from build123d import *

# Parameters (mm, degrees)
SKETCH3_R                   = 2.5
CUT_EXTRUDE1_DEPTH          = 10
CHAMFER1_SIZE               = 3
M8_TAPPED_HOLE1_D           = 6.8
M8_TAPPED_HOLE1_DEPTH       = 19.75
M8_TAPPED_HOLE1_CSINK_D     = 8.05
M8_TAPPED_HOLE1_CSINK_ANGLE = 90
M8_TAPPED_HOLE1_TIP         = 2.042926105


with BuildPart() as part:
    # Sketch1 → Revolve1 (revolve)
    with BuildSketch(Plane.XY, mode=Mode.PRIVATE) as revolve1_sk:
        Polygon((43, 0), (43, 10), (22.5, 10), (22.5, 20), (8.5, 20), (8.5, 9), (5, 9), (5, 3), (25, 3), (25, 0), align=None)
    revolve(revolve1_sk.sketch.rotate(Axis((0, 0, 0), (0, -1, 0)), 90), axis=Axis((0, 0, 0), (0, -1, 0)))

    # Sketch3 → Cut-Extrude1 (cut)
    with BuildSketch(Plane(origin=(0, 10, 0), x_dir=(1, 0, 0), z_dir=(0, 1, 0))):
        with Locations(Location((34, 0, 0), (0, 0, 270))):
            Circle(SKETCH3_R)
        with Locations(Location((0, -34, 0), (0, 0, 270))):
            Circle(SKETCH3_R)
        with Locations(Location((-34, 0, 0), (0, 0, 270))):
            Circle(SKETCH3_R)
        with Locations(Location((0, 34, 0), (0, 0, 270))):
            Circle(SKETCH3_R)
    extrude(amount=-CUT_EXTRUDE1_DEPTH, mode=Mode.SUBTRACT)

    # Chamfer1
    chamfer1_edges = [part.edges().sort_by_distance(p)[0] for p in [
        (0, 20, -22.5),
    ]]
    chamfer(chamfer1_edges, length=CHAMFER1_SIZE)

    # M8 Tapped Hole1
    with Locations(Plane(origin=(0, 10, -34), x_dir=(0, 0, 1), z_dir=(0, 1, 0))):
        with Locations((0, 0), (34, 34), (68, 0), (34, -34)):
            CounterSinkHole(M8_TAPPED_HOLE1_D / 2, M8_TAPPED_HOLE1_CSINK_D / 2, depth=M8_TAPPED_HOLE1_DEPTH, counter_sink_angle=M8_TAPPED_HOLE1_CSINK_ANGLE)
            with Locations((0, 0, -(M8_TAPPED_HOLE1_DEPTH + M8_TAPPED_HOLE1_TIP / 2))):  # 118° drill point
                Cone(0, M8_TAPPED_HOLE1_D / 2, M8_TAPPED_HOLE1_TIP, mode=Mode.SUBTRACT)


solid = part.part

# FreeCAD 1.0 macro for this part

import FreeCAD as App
import Part
import Sketcher


def edges_at(feature, points):
    """Names of the edges that pass closest to the given points."""
    edges = feature.Shape.Edges
    near = lambda p: min(range(len(edges)), key=lambda i: edges[i].distToShape(Part.Vertex(*p))[0])
    return sorted({f"Edge{near(p) + 1}" for p in points})


def add_polygon(sketch, points):
    """Adds a closed chain of lines whose ends are joined by coincident constraints."""
    first, n = sketch.GeometryCount, len(points)
    for a, b in zip(points, points[1:] + points[:1]):
        sketch.addGeometry(Part.LineSegment(App.Vector(*a, 0), App.Vector(*b, 0)), False)
    for i in range(n):
        sketch.addConstraint(Sketcher.Constraint("Coincident", first + i, 2, first + (i + 1) % n, 1))

doc = App.newDocument("Part")
body = doc.addObject("PartDesign::Body", "Body")

sketch1 = body.newObject("Sketcher::SketchObject", "Sketch")
sketch1.AttachmentSupport = (doc.getObject("XY_Plane"), [""])
sketch1.MapMode = "FlatFace"
add_polygon(sketch1, [(43, 0), (43, 10), (22.5, 10), (22.5, 20), (8.5, 20), (8.5, 9), (5, 9), (5, 3), (25, 3), (25, 0)])
sketch1.addConstraint(Sketcher.Constraint("Vertical", 0))
sketch1.addConstraint(Sketcher.Constraint("Horizontal", 1))
sketch1.addConstraint(Sketcher.Constraint("Vertical", 2))
sketch1.addConstraint(Sketcher.Constraint("Horizontal", 3))
sketch1.addConstraint(Sketcher.Constraint("Vertical", 4))
sketch1.addConstraint(Sketcher.Constraint("Horizontal", 5))
sketch1.addConstraint(Sketcher.Constraint("Vertical", 6))
sketch1.addConstraint(Sketcher.Constraint("Horizontal", 7))
sketch1.addConstraint(Sketcher.Constraint("Vertical", 8))
sketch1.addConstraint(Sketcher.Constraint("Horizontal", 9))
sketch1.addConstraint(Sketcher.Constraint("PointOnObject", 8, 2, -1))
sketch1.addConstraint(Sketcher.Constraint("Equal", 0, 2))
sketch1.addConstraint(Sketcher.Constraint("DistanceX", 3, 2, 3, 1, 14.0))
sketch1.addConstraint(Sketcher.Constraint("DistanceX", 7, 1, 7, 2, 20.0))
sketch1.addConstraint(Sketcher.Constraint("DistanceX", 9, 1, 9, 2, 18.0))
sketch1.addConstraint(Sketcher.Constraint("DistanceY", 0, 1, 0, 2, 10.0))
sketch1.addConstraint(Sketcher.Constraint("DistanceY", 4, 2, 4, 1, 11.0))
sketch1.addConstraint(Sketcher.Constraint("DistanceY", 6, 2, 6, 1, 6.0))
sketch1.addConstraint(Sketcher.Constraint("DistanceX", 1, 2, 1, 1, 20.5))
sketch1.addConstraint(Sketcher.Constraint("DistanceX", -1, 1, 0, 2, 43.0))
revolution = body.newObject("PartDesign::Revolution", "Revolution")
revolution.Profile = sketch1
revolution.ReferenceAxis = (sketch1, ["V_Axis"])
revolution.Angle = 360

sketch2 = body.newObject("Sketcher::SketchObject", "Sketch001")
sketch2.AttachmentSupport = (doc.getObject("XZ_Plane"), [""])
sketch2.MapMode = "FlatFace"
sketch2.AttachmentOffset = App.Placement(App.Vector(0, 0, -10), App.Rotation())
sketch2.addGeometry(Part.Circle(App.Vector(34, 0, 0), App.Vector(0, 0, 1), 2.5), False)
sketch2.addGeometry(Part.Circle(App.Vector(0, 34, 0), App.Vector(0, 0, 1), 2.5), False)
sketch2.addGeometry(Part.Circle(App.Vector(-34, 0, 0), App.Vector(0, 0, 1), 2.5), False)
sketch2.addGeometry(Part.Circle(App.Vector(0, -34, 0), App.Vector(0, 0, 1), 2.5), False)
sketch2.addConstraint(Sketcher.Constraint("Equal", 0, 1))
sketch2.addConstraint(Sketcher.Constraint("Equal", 1, 2))
sketch2.addConstraint(Sketcher.Constraint("Equal", 2, 3))
sketch2.addConstraint(Sketcher.Constraint("Symmetric", 0, 3, 2, 3, -1, 1))
sketch2.addConstraint(Sketcher.Constraint("Symmetric", 1, 3, 3, 3, -1, 1))
sketch2.addConstraint(Sketcher.Constraint("PointOnObject", 0, 3, -1))
sketch2.addConstraint(Sketcher.Constraint("PointOnObject", 1, 3, -2))
sketch2.addConstraint(Sketcher.Constraint("Diameter", 0, 5.0))
sketch2.addConstraint(Sketcher.Constraint("DistanceX", -1, 1, 0, 3, 34.0))
sketch2.addConstraint(Sketcher.Constraint("DistanceY", -1, 1, 1, 3, 34.0))
pocket1 = body.newObject("PartDesign::Pocket", "Pocket")
pocket1.Profile = sketch2
pocket1.Length = 10
pocket1.Reversed = True
doc.recompute()

chamfer = body.newObject("PartDesign::Chamfer", "Chamfer")
chamfer.Base = (pocket1, edges_at(pocket1, [(0, 20, -22.5)]))
chamfer.Size = 3

sketch3 = body.newObject("Sketcher::SketchObject", "Sketch002")
sketch3.AttachmentSupport = (doc.getObject("XZ_Plane"), [""])
sketch3.MapMode = "FlatFace"
sketch3.AttachmentOffset = App.Placement(App.Vector(0, 0, -10), App.Rotation())
sketch3.addGeometry(Part.Circle(App.Vector(0, -34, 0), App.Vector(0, 0, 1), 3.4), False)
sketch3.addGeometry(Part.Circle(App.Vector(34, 0, 0), App.Vector(0, 0, 1), 3.4), False)
sketch3.addGeometry(Part.Circle(App.Vector(0, 34, 0), App.Vector(0, 0, 1), 3.4), False)
sketch3.addGeometry(Part.Circle(App.Vector(-34, 0, 0), App.Vector(0, 0, 1), 3.4), False)
sketch3.addConstraint(Sketcher.Constraint("Equal", 0, 1))
sketch3.addConstraint(Sketcher.Constraint("Equal", 1, 2))
sketch3.addConstraint(Sketcher.Constraint("Equal", 2, 3))
sketch3.addConstraint(Sketcher.Constraint("Symmetric", 0, 3, 2, 3, -1, 1))
sketch3.addConstraint(Sketcher.Constraint("Symmetric", 1, 3, 3, 3, -1, 1))
sketch3.addConstraint(Sketcher.Constraint("PointOnObject", 0, 3, -2))
sketch3.addConstraint(Sketcher.Constraint("PointOnObject", 1, 3, -1))
sketch3.addConstraint(Sketcher.Constraint("Diameter", 0, 6.8))
sketch3.addConstraint(Sketcher.Constraint("DistanceY", 0, 3, -1, 1, 34.0))
sketch3.addConstraint(Sketcher.Constraint("DistanceX", -1, 1, 1, 3, 34.0))
doc.recompute()
hole = body.newObject("PartDesign::Hole", "Hole")
hole.Profile = sketch3
hole.ThreadType = "None"
hole.Diameter = 6.8
hole.DepthType = "Dimension"
hole.Depth = 19.75
hole.DrillPoint = "Angled"
hole.DrillPointAngle = 118
hole.HoleCutType = "Countersink"
hole.HoleCutDiameter = 8.05
hole.HoleCutCountersinkAngle = 90
hole.Reversed = True

doc.recompute()
